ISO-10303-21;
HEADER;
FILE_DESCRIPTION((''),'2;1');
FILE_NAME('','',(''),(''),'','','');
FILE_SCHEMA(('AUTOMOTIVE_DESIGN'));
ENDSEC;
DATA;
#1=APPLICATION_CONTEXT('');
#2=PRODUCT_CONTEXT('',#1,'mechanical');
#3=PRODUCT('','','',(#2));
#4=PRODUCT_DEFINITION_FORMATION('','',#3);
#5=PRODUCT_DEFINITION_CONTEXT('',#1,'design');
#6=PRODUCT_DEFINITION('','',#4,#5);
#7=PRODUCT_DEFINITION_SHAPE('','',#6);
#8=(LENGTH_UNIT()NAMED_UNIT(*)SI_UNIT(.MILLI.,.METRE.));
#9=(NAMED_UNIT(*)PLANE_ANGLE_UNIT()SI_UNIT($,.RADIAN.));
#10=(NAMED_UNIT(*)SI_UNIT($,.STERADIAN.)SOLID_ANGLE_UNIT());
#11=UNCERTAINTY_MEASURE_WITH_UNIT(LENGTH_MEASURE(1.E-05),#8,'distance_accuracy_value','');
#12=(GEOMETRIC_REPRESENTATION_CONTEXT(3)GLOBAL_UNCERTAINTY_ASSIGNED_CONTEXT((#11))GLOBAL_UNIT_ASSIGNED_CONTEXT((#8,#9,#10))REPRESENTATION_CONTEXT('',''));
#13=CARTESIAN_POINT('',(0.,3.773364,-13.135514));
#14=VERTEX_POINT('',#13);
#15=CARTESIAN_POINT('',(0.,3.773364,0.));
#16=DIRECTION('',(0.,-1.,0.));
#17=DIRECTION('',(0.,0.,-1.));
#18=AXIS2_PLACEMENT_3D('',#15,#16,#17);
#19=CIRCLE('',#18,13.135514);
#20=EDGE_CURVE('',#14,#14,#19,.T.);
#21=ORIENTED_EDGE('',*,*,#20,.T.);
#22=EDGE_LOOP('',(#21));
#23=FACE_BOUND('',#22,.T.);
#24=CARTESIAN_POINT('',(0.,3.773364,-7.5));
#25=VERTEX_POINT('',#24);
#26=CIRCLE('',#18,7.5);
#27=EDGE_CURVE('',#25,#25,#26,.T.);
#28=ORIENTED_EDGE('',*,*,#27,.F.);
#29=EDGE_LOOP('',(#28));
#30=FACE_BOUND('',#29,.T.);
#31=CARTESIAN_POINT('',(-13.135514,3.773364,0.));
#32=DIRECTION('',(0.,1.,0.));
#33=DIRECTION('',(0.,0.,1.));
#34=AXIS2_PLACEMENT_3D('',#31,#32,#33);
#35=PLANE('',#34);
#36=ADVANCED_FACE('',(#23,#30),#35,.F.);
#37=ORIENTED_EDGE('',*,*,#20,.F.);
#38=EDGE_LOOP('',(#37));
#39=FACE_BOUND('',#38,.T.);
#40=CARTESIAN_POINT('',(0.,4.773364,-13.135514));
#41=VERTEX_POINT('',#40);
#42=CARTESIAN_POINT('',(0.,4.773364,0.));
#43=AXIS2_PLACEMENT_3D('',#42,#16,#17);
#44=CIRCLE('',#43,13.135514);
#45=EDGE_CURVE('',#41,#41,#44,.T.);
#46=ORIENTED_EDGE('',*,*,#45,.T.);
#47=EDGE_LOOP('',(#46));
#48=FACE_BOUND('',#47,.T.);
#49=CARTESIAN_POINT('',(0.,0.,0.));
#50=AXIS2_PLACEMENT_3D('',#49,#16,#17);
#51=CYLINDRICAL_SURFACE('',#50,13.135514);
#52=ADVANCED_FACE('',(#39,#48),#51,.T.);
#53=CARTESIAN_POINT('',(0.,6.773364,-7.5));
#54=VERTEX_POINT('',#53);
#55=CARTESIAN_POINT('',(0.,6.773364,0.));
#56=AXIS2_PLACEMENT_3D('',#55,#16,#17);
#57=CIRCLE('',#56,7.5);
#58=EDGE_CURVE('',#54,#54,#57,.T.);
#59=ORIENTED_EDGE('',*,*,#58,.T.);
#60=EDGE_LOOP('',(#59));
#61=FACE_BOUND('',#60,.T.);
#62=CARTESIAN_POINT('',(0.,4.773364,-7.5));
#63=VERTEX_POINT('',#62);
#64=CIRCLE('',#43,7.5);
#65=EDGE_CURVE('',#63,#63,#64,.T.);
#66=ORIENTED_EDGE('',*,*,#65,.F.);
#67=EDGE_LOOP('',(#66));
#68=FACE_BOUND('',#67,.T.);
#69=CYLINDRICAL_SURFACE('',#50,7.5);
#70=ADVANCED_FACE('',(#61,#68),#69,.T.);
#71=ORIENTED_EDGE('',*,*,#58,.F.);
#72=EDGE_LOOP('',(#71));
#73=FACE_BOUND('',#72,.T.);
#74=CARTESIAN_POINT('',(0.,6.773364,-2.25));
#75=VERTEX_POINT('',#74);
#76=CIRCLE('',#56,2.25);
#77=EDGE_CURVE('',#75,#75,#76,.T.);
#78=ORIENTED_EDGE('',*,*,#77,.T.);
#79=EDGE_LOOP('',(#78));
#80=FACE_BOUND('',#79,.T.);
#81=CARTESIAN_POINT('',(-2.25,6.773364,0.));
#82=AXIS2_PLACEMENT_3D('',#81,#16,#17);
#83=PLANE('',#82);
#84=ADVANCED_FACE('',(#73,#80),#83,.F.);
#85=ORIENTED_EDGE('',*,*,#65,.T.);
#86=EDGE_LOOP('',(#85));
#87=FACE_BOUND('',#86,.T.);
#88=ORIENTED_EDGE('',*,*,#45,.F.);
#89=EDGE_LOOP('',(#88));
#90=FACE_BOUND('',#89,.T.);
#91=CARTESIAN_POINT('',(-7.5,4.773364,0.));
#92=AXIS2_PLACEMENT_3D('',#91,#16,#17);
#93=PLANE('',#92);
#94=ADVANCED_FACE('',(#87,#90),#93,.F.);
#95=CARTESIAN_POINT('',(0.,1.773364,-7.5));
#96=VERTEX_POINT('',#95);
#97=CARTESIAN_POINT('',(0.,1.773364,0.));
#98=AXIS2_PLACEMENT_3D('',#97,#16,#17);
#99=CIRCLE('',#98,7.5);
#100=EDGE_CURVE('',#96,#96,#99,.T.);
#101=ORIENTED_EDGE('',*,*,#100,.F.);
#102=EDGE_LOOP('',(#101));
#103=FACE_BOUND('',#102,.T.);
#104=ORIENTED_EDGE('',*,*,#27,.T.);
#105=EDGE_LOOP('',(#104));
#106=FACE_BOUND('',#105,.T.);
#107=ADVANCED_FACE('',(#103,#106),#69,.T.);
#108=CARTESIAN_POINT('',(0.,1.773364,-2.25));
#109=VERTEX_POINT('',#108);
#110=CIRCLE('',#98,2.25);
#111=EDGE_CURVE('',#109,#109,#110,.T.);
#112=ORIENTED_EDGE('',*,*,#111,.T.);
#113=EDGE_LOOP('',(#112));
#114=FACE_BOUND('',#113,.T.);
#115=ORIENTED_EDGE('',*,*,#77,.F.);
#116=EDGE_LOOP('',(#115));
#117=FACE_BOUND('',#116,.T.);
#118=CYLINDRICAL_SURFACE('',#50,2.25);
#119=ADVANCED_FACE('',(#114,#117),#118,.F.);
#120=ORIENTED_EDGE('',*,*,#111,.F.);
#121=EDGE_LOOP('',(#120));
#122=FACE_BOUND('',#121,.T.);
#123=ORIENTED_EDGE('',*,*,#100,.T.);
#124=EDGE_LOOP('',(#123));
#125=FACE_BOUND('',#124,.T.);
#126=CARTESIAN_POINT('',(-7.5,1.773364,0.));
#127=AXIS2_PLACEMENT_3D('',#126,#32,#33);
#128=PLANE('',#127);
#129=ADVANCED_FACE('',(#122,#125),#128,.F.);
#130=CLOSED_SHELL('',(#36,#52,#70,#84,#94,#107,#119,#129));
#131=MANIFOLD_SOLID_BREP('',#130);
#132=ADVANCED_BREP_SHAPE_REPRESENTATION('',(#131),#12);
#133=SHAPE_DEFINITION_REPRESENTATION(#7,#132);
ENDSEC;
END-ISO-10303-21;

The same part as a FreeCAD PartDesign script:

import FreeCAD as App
import Part
import Sketcher

V = App.Vector
Q = App.Units.Quantity


def add_polygon(sketch, points):
    """Adds a closed chain of lines whose ends are joined by coincident constraints."""
    first, n = sketch.GeometryCount, len(points)
    for a, b in zip(points, points[1:] + points[:1]):
        sketch.addGeometry(Part.LineSegment(App.Vector(*a, 0), App.Vector(*b, 0)), False)
    for i in range(n):
        sketch.addConstraint(Sketcher.Constraint("Coincident", first + i, 2, first + (i + 1) % n, 1))

doc = App.newDocument("Part")
body = doc.addObject("PartDesign::Body", "Body")

# Sketch on XY plane
sketch1 = body.newObject("Sketcher::SketchObject", "Sketch")
sketch1.AttachmentSupport = (doc.getObject("XY_Plane"), [""])
sketch1.MapMode = "FlatFace"
add_polygon(sketch1, [(-2.2, 1.8), (-2.2, 6.8), (-7.5, 6.8), (-7.5, 4.8), (-13.1, 4.8), (-13.1, 3.8), (-7.5, 3.8), (-7.5, 1.8)])  # lines 0-7
sketch1.addConstraint(Sketcher.Constraint("Vertical", 0))
sketch1.addConstraint(Sketcher.Constraint("Horizontal", 1))
sketch1.addConstraint(Sketcher.Constraint("Vertical", 2))
sketch1.addConstraint(Sketcher.Constraint("Horizontal", 3))
sketch1.addConstraint(Sketcher.Constraint("Vertical", 4))
sketch1.addConstraint(Sketcher.Constraint("Horizontal", 5))
sketch1.addConstraint(Sketcher.Constraint("Vertical", 6))
sketch1.addConstraint(Sketcher.Constraint("Horizontal", 7))
sketch1.addConstraint(Sketcher.Constraint("Vertical", 2, 2, 5, 2))
sketch1.addConstraint(Sketcher.Constraint("Equal", 2, 6))
sketch1.addConstraint(Sketcher.Constraint("DistanceY", 0, 1, 0, 2, Q("5 mm")))
sketch1.addConstraint(Sketcher.Constraint("DistanceY", 2, 2, 2, 1, Q("2 mm")))
sketch1.addConstraint(Sketcher.Constraint("DistanceX", 1, 2, 1, 1, Q("5.25 mm")))
sketch1.addConstraint(Sketcher.Constraint("DistanceX", 1, 2, -1, 1, Q("7.5 mm")))
sketch1.addConstraint(Sketcher.Constraint("DistanceX", 3, 2, 3, 1, Q("5.635514 mm")))
sketch1.addConstraint(Sketcher.Constraint("DistanceY", -1, 1, 0, 2, Q("6.773364 mm")))
revolution = body.newObject("PartDesign::Revolution", "Revolution")
revolution.Profile = sketch1
revolution.ReferenceAxis = (sketch1, ["V_Axis"])
revolution.Angle = 360

doc.recompute()
